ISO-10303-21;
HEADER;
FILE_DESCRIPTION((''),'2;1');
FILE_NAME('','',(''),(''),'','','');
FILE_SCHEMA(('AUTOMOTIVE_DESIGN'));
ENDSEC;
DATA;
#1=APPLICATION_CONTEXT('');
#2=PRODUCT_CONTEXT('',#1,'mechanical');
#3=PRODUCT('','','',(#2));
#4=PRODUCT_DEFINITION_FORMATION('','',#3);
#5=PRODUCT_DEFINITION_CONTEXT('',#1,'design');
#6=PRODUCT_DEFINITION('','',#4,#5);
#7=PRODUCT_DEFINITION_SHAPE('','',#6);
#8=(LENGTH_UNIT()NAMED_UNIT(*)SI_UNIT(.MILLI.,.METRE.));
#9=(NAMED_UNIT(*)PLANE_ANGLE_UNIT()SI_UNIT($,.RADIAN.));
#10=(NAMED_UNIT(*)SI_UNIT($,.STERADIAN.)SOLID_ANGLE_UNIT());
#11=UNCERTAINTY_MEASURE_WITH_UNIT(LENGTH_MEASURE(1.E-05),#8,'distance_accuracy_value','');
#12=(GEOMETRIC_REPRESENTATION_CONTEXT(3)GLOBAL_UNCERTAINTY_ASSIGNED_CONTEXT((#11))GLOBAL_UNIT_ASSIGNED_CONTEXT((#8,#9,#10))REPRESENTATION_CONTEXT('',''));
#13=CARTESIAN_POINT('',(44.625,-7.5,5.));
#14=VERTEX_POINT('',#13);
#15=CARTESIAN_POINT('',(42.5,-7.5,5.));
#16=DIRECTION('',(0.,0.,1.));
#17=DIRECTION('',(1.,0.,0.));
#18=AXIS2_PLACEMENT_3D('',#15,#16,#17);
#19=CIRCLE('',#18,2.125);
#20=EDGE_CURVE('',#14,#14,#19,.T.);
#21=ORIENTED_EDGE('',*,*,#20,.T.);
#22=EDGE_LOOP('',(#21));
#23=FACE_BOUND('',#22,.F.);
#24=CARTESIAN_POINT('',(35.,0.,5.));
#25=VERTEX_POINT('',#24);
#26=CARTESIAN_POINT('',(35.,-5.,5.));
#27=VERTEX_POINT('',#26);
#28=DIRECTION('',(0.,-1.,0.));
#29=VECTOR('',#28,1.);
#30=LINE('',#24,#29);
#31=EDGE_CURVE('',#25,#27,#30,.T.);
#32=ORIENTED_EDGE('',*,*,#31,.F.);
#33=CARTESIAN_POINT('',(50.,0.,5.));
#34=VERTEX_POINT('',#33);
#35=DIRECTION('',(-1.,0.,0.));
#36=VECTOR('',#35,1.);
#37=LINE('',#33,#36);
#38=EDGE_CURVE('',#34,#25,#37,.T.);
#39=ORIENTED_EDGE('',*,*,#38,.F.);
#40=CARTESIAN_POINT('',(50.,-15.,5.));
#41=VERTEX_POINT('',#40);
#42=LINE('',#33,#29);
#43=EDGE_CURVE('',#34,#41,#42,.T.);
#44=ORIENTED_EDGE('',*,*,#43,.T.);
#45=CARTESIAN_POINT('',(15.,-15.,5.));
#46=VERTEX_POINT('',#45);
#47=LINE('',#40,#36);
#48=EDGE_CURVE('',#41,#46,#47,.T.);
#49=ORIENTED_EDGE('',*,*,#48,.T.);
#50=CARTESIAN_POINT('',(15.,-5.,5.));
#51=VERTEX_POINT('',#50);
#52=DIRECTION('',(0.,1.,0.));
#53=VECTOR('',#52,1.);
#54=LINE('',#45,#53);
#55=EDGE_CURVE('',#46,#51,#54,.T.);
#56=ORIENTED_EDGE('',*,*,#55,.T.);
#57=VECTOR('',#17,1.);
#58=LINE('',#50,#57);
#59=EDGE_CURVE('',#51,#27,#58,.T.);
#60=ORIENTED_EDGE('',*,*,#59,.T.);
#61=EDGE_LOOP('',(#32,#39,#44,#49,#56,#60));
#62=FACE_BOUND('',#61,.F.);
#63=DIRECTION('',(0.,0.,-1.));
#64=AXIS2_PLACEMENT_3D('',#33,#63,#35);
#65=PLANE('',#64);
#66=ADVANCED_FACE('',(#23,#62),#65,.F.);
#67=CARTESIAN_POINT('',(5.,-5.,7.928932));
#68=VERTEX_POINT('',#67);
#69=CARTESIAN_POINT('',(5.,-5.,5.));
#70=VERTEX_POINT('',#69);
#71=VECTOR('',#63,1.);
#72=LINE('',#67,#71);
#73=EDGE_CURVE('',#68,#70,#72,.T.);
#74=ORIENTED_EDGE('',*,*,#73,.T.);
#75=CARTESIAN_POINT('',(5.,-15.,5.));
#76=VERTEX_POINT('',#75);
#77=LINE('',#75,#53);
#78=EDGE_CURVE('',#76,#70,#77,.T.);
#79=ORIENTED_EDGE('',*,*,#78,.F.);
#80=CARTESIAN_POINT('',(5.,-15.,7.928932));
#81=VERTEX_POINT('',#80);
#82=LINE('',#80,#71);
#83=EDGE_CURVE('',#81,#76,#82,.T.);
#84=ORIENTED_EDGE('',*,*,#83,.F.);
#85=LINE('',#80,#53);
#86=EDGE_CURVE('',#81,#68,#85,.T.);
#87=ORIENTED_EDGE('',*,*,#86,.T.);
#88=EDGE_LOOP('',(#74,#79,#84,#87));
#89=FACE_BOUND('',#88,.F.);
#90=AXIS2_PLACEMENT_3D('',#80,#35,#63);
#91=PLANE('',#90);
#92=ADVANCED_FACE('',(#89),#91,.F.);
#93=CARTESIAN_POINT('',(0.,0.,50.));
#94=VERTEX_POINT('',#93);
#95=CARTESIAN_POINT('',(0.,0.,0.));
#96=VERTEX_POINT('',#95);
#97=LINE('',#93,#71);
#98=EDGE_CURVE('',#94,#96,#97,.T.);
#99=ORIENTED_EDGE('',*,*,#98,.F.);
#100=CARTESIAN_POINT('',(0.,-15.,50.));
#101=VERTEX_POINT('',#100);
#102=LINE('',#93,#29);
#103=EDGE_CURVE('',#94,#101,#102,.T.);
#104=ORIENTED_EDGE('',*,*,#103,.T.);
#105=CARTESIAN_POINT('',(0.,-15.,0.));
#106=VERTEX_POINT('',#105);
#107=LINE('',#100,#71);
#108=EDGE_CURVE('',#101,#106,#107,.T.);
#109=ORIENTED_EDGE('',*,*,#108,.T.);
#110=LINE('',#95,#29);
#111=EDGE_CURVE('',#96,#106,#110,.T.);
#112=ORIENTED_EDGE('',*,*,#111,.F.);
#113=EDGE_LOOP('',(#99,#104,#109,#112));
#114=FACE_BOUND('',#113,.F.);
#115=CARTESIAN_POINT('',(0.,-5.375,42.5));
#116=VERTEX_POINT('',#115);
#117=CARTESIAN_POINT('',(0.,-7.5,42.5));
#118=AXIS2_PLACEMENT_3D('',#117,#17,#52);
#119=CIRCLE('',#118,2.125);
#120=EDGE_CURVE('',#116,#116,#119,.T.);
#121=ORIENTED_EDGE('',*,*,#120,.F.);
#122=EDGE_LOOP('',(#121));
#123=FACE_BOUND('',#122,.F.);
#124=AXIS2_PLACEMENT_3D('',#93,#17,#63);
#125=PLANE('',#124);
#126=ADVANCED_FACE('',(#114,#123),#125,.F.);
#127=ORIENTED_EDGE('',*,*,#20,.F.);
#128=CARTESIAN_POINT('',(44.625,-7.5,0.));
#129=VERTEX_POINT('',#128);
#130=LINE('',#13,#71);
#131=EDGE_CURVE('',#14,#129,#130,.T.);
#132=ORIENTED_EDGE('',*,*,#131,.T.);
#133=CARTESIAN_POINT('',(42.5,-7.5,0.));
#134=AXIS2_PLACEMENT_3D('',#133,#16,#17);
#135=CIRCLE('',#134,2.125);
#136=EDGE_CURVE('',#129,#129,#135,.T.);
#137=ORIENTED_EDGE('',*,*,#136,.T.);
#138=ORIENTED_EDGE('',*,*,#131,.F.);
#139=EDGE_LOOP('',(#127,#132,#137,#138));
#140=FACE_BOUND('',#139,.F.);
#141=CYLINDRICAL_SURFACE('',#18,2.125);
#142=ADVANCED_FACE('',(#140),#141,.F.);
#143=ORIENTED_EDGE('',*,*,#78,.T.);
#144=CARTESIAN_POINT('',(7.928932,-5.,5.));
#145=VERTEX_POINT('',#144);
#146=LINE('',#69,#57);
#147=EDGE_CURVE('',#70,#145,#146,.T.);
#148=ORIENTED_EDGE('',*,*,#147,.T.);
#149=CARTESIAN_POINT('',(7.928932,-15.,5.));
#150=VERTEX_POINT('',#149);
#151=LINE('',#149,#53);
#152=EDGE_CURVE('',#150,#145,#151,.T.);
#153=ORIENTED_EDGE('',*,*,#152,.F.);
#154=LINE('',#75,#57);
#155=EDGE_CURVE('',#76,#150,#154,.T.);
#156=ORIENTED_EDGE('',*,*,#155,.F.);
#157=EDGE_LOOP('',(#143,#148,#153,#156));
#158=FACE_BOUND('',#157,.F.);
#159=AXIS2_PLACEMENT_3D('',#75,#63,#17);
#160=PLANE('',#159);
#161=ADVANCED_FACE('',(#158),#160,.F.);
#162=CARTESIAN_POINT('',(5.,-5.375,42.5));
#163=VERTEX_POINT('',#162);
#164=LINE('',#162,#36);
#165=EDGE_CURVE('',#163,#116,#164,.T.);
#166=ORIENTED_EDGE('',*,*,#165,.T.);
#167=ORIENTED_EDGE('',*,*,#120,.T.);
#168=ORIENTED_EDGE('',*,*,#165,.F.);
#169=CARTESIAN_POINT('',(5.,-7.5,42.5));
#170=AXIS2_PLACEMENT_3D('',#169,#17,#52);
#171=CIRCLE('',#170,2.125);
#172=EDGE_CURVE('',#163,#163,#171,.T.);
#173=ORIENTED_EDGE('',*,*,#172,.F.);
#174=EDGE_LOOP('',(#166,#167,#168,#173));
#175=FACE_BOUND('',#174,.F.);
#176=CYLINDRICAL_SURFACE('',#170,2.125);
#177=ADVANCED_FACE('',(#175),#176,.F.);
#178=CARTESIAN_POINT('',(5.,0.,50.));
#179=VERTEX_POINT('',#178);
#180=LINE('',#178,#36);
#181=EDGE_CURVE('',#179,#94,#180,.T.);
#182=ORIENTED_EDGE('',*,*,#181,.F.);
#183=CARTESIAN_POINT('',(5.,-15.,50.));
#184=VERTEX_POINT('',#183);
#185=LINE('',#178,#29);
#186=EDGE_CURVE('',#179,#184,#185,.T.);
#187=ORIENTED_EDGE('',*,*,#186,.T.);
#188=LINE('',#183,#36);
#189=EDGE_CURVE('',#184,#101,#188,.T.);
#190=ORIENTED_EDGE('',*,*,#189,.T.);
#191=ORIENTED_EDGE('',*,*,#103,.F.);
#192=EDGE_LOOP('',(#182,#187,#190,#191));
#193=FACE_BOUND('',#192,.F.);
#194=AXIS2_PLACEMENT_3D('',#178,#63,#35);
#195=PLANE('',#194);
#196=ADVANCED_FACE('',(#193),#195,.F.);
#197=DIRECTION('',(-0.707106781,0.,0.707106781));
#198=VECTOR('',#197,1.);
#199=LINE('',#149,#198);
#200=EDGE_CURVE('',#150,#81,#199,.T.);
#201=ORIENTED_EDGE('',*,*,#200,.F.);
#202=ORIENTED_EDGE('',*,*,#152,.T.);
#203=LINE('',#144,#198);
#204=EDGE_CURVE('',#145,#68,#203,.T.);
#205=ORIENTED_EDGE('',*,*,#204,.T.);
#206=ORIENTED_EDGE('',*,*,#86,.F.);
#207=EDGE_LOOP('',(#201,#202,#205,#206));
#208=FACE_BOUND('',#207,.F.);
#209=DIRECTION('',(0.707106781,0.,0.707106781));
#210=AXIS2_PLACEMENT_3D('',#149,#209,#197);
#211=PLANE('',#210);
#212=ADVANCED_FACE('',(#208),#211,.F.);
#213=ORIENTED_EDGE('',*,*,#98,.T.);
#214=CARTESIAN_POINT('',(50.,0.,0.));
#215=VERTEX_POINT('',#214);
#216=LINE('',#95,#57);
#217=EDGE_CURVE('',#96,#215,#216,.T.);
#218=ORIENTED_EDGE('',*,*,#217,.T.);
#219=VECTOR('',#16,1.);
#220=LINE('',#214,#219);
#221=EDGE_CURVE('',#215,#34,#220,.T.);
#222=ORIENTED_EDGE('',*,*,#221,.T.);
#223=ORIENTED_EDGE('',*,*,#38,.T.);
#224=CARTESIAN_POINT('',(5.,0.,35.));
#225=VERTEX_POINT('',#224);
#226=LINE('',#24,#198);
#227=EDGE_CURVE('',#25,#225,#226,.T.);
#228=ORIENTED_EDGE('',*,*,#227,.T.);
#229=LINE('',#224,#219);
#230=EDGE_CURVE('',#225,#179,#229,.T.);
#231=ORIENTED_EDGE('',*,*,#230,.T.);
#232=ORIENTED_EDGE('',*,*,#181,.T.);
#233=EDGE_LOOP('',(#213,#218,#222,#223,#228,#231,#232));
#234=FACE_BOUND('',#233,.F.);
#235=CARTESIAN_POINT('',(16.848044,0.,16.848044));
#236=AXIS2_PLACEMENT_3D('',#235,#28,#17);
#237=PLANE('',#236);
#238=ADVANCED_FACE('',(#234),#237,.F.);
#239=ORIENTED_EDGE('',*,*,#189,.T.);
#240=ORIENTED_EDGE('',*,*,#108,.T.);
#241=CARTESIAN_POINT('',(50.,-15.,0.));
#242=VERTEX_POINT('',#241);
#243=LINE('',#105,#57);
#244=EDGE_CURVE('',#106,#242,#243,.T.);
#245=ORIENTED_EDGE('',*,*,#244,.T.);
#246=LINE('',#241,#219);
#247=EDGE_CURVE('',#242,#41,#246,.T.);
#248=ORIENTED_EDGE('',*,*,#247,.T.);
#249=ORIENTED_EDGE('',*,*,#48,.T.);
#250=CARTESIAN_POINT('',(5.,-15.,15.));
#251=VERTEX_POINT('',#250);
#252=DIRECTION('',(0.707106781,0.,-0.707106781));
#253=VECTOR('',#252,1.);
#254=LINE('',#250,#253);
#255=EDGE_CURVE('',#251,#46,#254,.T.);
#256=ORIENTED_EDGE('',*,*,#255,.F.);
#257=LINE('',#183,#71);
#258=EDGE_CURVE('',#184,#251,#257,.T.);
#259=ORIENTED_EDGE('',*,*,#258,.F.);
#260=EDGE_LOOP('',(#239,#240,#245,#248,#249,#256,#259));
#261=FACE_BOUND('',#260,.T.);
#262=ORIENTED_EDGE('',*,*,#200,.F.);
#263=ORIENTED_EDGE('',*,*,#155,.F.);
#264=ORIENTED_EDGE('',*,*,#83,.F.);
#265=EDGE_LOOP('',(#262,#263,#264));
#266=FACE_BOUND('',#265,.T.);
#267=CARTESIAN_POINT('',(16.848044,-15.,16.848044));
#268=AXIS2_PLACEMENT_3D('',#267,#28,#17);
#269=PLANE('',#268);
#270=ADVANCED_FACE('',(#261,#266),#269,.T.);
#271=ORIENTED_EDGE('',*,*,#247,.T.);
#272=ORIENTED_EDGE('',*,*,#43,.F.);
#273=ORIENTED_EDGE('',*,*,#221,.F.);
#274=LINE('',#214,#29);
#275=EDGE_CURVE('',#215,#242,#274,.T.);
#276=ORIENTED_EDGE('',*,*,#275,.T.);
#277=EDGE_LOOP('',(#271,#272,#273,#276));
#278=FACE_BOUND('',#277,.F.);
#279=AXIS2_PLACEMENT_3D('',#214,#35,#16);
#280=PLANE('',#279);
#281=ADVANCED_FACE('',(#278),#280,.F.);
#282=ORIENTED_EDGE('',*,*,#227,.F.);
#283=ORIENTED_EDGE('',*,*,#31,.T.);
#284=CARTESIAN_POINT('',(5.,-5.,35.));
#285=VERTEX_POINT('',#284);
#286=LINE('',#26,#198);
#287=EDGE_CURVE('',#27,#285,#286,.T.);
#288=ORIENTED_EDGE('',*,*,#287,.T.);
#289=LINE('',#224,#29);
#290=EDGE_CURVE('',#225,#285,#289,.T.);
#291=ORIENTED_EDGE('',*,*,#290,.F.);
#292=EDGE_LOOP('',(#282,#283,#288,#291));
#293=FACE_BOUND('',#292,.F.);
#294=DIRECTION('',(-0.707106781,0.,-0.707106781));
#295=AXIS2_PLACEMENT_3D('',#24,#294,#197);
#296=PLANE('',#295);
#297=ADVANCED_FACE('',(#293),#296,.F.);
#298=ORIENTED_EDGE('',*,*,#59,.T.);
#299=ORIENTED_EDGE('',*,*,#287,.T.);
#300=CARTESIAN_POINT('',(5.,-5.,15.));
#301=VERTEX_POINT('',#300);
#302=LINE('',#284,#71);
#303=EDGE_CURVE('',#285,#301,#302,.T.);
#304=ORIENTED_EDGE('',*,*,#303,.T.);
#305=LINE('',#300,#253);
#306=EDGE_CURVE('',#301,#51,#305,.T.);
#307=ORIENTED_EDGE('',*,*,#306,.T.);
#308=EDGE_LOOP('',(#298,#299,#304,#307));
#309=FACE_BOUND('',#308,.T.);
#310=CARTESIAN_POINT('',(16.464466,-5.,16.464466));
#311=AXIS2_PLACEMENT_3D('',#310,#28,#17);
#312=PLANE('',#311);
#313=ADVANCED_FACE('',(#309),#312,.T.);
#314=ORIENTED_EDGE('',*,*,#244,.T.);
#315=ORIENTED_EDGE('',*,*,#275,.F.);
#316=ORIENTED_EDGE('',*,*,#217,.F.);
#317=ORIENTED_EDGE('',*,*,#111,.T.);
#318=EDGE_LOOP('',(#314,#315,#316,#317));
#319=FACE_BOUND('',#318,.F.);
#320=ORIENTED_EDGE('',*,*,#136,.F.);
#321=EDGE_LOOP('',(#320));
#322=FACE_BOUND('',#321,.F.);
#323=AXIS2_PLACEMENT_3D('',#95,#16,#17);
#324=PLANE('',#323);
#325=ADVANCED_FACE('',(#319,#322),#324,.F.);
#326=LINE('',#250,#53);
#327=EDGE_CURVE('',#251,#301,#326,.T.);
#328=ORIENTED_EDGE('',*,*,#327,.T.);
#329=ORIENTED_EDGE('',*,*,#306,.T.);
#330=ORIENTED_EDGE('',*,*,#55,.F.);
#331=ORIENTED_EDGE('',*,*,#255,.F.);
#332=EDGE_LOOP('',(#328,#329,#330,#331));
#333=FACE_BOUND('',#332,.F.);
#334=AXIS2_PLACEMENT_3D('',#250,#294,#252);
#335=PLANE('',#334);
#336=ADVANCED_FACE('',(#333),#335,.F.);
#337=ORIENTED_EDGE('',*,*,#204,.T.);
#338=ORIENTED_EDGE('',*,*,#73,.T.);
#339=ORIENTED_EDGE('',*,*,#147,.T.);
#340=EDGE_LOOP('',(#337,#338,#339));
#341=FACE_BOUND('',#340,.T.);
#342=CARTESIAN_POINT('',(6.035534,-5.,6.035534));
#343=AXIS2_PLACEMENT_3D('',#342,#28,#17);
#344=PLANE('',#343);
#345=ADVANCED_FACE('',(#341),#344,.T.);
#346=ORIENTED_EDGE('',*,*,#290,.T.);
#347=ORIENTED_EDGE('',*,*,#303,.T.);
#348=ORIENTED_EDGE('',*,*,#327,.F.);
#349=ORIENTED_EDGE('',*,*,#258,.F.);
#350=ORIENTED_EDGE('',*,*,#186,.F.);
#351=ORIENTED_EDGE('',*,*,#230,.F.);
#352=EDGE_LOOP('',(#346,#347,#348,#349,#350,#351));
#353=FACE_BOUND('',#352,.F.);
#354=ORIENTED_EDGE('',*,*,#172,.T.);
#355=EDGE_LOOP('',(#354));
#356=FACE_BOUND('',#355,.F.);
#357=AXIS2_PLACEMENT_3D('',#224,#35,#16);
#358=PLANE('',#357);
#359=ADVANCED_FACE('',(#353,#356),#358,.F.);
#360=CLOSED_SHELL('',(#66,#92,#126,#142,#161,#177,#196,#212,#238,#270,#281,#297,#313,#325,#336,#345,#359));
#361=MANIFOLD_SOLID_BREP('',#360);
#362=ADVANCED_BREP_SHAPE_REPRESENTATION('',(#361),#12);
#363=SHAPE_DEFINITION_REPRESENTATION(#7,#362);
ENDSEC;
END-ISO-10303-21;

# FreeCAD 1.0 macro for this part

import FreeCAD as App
import Part
import Sketcher

V = App.Vector

doc = App.newDocument("Part")
params = doc.addObject("Spreadsheet::Sheet", "Params")
for row, (alias, value) in enumerate([
    ("sketch1_width", "5 mm"),
    ("sketch1_width2", "50 mm"),
    ("sketch1_width3", "15 mm"),
    ("pad1_length", "15 mm"),
    ("sketch2_diameter", "4.25 mm"),
    ("pocket1_length", "25 mm"),
    ("sketch3_diameter", "4.25 mm"),
    ("pocket2_length", "25 mm"),
    ("sketch4_width", "20 mm"),
    ("pocket3_length", "10 mm"),
    ("pocket4_length", "10 mm"),
], start=1):
    params.set(f"A{row}", alias)
    params.set(f"B{row}", "=" + value)
    params.setAlias(f"B{row}", alias)

body = doc.addObject("PartDesign::Body", "Body")

# Sketch on XZ plane
sketch1 = body.newObject("Sketcher::SketchObject", "Sketch")
sketch1.AttachmentSupport = (doc.getObject("XZ_Plane"), [""])
sketch1.MapMode = "FlatFace"
sketch1.addGeometry([
    Part.LineSegment(V(5, 50, 0), V(0, 50, 0)),  # 0
    Part.LineSegment(V(0, 50, 0), V(0, 0, 0)),  # 1
    Part.LineSegment(V(0, 0, 0), V(50, 0, 0)),  # 2
    Part.LineSegment(V(50, 0, 0), V(50, 5, 0)),  # 3
    Part.LineSegment(V(50, 5, 0), V(35, 5, 0)),  # 4
    Part.LineSegment(V(35, 5, 0), V(5, 35, 0)),  # 5
    Part.LineSegment(V(5, 35, 0), V(5, 50, 0)),  # 6
], False)
sketch1.addConstraint([
    Sketcher.Constraint("Coincident", 0, 2, 1, 1),
    Sketcher.Constraint("Coincident", 1, 2, 2, 1),
    Sketcher.Constraint("Coincident", 2, 2, 3, 1),
    Sketcher.Constraint("Coincident", 3, 2, 4, 1),
    Sketcher.Constraint("Coincident", 4, 2, 5, 1),
    Sketcher.Constraint("Coincident", 5, 2, 6, 1),
    Sketcher.Constraint("Coincident", 6, 2, 0, 1),
    Sketcher.Constraint("Horizontal", 0),
    Sketcher.Constraint("Vertical", 1),
    Sketcher.Constraint("Horizontal", 2),
    Sketcher.Constraint("Vertical", 3),
    Sketcher.Constraint("Horizontal", 4),
    Sketcher.Constraint("Vertical", 6),
    Sketcher.Constraint("Coincident", 1, 2, -1, 1),
    Sketcher.Constraint("Equal", 2, 1),
    Sketcher.Constraint("Equal", 0, 3),
    Sketcher.Constraint("Equal", 4, 6),
    Sketcher.Constraint("DistanceX", 0, 2, 0, 1, 5.0),
    Sketcher.Constraint("DistanceX", 2, 1, 2, 2, 50.0),
    Sketcher.Constraint("DistanceX", 4, 2, 4, 1, 15.0),
])
sketch1.setExpression("Constraints[17]", "Params.sketch1_width")
sketch1.setExpression("Constraints[18]", "Params.sketch1_width2")
sketch1.setExpression("Constraints[19]", "Params.sketch1_width3")
pad1 = body.newObject("PartDesign::Pad", "Pad")
pad1.Profile = sketch1
pad1.setExpression("Length", "Params.pad1_length")

# Sketch on XY plane
sketch2 = body.newObject("Sketcher::SketchObject", "Sketch001")
sketch2.AttachmentSupport = (doc.getObject("XY_Plane"), [""])
sketch2.MapMode = "FlatFace"
sketch2.AttachmentOffset = App.Placement(V(0, 0, 5), App.Rotation())
sketch2.addGeometry(Part.Circle(V(42.5, -7.5, 0), V(0, 0, 1), 2.1), False)
sketch2.addConstraint([
    Sketcher.Constraint("Diameter", 0, 4.25),
    Sketcher.Constraint("DistanceX", -1, 1, 0, 3, 42.5),
    Sketcher.Constraint("DistanceY", 0, 3, -1, 1, 7.5),
])
sketch2.setExpression("Constraints[0]", "Params.sketch2_diameter")
pocket1 = body.newObject("PartDesign::Pocket", "Pocket")
pocket1.Profile = sketch2
pocket1.setExpression("Length", "Params.pocket1_length")

# Sketch on YZ plane
sketch3 = body.newObject("Sketcher::SketchObject", "Sketch002")
sketch3.AttachmentSupport = (doc.getObject("YZ_Plane"), [""])
sketch3.MapMode = "FlatFace"
sketch3.AttachmentOffset = App.Placement(V(0, 0, 5), App.Rotation())
sketch3.addGeometry(Part.Circle(V(-7.5, 42.5, 0), V(0, 0, 1), 2.1), False)
sketch3.addConstraint([
    Sketcher.Constraint("Diameter", 0, 4.25),
    Sketcher.Constraint("DistanceX", 0, 3, -1, 1, 7.5),
    Sketcher.Constraint("DistanceY", -1, 1, 0, 3, 42.5),
])
sketch3.setExpression("Constraints[0]", "Params.sketch3_diameter")
pocket2 = body.newObject("PartDesign::Pocket", "Pocket001")
pocket2.Profile = sketch3
pocket2.setExpression("Length", "Params.pocket2_length")

# Sketch on XZ plane
sketch4 = body.newObject("Sketcher::SketchObject", "Sketch003")
sketch4.AttachmentSupport = (doc.getObject("XZ_Plane"), [""])
sketch4.MapMode = "FlatFace"
sketch4.AttachmentOffset = App.Placement(V(0, 0, 15), App.Rotation())
sketch4.addGeometry([
    Part.LineSegment(V(35, 5, 0), V(5, 35, 0)),
    Part.LineSegment(V(5, 35, 0), V(5, 15, 0)),
    Part.LineSegment(V(5, 15, 0), V(15, 5, 0)),
    Part.LineSegment(V(15, 5, 0), V(35, 5, 0)),
], False)
sketch4.addConstraint([
    Sketcher.Constraint("Coincident", 0, 2, 1, 1),
    Sketcher.Constraint("Coincident", 1, 2, 2, 1),
    Sketcher.Constraint("Coincident", 2, 2, 3, 1),
    Sketcher.Constraint("Coincident", 3, 2, 0, 1),
    Sketcher.Constraint("Vertical", 1),
    Sketcher.Constraint("Horizontal", 3),
    Sketcher.Constraint("Parallel", 0, 2),
    Sketcher.Constraint("Equal", 3, 1),
    Sketcher.Constraint("DistanceX", 3, 1, 3, 2, 20.0),
    Sketcher.Constraint("DistanceX", -1, 1, 0, 2, 5.0),
    Sketcher.Constraint("DistanceY", -1, 1, 0, 2, 35.0),
    Sketcher.Constraint("DistanceX", -1, 1, 2, 2, 15.0),
])
sketch4.setExpression("Constraints[8]", "Params.sketch4_width")
pocket3 = body.newObject("PartDesign::Pocket", "Pocket002")
pocket3.Profile = sketch4
pocket3.setExpression("Length", "Params.pocket3_length")

# Sketch on XZ plane
sketch5 = body.newObject("Sketcher::SketchObject", "Sketch004")
sketch5.AttachmentSupport = (doc.getObject("XZ_Plane"), [""])
sketch5.MapMode = "FlatFace"
sketch5.AttachmentOffset = App.Placement(V(0, 0, 15), App.Rotation())
sketch5.addGeometry([
    Part.LineSegment(V(7.9, 5, 0), V(5, 7.9, 0)),
    Part.LineSegment(V(5, 7.9, 0), V(5, 5, 0)),
    Part.LineSegment(V(5, 5, 0), V(7.9, 5, 0)),
], False)
sketch5.addConstraint([
    Sketcher.Constraint("Coincident", 0, 2, 1, 1),
    Sketcher.Constraint("Coincident", 1, 2, 2, 1),
    Sketcher.Constraint("Coincident", 2, 2, 0, 1),
    Sketcher.Constraint("Vertical", 1),
    Sketcher.Constraint("Horizontal", 2),
    Sketcher.Constraint("Equal", 2, 1),
    Sketcher.Constraint("DistanceX", -1, 1, 0, 2, 5.0),
    Sketcher.Constraint("DistanceY", -1, 1, 1, 2, 5.0),
    Sketcher.Constraint("DistanceX", 2, 1, 2, 2, 2.928932),
])
pocket4 = body.newObject("PartDesign::Pocket", "Pocket003")
pocket4.Profile = sketch5
pocket4.setExpression("Length", "Params.pocket4_length")

doc.recompute()
